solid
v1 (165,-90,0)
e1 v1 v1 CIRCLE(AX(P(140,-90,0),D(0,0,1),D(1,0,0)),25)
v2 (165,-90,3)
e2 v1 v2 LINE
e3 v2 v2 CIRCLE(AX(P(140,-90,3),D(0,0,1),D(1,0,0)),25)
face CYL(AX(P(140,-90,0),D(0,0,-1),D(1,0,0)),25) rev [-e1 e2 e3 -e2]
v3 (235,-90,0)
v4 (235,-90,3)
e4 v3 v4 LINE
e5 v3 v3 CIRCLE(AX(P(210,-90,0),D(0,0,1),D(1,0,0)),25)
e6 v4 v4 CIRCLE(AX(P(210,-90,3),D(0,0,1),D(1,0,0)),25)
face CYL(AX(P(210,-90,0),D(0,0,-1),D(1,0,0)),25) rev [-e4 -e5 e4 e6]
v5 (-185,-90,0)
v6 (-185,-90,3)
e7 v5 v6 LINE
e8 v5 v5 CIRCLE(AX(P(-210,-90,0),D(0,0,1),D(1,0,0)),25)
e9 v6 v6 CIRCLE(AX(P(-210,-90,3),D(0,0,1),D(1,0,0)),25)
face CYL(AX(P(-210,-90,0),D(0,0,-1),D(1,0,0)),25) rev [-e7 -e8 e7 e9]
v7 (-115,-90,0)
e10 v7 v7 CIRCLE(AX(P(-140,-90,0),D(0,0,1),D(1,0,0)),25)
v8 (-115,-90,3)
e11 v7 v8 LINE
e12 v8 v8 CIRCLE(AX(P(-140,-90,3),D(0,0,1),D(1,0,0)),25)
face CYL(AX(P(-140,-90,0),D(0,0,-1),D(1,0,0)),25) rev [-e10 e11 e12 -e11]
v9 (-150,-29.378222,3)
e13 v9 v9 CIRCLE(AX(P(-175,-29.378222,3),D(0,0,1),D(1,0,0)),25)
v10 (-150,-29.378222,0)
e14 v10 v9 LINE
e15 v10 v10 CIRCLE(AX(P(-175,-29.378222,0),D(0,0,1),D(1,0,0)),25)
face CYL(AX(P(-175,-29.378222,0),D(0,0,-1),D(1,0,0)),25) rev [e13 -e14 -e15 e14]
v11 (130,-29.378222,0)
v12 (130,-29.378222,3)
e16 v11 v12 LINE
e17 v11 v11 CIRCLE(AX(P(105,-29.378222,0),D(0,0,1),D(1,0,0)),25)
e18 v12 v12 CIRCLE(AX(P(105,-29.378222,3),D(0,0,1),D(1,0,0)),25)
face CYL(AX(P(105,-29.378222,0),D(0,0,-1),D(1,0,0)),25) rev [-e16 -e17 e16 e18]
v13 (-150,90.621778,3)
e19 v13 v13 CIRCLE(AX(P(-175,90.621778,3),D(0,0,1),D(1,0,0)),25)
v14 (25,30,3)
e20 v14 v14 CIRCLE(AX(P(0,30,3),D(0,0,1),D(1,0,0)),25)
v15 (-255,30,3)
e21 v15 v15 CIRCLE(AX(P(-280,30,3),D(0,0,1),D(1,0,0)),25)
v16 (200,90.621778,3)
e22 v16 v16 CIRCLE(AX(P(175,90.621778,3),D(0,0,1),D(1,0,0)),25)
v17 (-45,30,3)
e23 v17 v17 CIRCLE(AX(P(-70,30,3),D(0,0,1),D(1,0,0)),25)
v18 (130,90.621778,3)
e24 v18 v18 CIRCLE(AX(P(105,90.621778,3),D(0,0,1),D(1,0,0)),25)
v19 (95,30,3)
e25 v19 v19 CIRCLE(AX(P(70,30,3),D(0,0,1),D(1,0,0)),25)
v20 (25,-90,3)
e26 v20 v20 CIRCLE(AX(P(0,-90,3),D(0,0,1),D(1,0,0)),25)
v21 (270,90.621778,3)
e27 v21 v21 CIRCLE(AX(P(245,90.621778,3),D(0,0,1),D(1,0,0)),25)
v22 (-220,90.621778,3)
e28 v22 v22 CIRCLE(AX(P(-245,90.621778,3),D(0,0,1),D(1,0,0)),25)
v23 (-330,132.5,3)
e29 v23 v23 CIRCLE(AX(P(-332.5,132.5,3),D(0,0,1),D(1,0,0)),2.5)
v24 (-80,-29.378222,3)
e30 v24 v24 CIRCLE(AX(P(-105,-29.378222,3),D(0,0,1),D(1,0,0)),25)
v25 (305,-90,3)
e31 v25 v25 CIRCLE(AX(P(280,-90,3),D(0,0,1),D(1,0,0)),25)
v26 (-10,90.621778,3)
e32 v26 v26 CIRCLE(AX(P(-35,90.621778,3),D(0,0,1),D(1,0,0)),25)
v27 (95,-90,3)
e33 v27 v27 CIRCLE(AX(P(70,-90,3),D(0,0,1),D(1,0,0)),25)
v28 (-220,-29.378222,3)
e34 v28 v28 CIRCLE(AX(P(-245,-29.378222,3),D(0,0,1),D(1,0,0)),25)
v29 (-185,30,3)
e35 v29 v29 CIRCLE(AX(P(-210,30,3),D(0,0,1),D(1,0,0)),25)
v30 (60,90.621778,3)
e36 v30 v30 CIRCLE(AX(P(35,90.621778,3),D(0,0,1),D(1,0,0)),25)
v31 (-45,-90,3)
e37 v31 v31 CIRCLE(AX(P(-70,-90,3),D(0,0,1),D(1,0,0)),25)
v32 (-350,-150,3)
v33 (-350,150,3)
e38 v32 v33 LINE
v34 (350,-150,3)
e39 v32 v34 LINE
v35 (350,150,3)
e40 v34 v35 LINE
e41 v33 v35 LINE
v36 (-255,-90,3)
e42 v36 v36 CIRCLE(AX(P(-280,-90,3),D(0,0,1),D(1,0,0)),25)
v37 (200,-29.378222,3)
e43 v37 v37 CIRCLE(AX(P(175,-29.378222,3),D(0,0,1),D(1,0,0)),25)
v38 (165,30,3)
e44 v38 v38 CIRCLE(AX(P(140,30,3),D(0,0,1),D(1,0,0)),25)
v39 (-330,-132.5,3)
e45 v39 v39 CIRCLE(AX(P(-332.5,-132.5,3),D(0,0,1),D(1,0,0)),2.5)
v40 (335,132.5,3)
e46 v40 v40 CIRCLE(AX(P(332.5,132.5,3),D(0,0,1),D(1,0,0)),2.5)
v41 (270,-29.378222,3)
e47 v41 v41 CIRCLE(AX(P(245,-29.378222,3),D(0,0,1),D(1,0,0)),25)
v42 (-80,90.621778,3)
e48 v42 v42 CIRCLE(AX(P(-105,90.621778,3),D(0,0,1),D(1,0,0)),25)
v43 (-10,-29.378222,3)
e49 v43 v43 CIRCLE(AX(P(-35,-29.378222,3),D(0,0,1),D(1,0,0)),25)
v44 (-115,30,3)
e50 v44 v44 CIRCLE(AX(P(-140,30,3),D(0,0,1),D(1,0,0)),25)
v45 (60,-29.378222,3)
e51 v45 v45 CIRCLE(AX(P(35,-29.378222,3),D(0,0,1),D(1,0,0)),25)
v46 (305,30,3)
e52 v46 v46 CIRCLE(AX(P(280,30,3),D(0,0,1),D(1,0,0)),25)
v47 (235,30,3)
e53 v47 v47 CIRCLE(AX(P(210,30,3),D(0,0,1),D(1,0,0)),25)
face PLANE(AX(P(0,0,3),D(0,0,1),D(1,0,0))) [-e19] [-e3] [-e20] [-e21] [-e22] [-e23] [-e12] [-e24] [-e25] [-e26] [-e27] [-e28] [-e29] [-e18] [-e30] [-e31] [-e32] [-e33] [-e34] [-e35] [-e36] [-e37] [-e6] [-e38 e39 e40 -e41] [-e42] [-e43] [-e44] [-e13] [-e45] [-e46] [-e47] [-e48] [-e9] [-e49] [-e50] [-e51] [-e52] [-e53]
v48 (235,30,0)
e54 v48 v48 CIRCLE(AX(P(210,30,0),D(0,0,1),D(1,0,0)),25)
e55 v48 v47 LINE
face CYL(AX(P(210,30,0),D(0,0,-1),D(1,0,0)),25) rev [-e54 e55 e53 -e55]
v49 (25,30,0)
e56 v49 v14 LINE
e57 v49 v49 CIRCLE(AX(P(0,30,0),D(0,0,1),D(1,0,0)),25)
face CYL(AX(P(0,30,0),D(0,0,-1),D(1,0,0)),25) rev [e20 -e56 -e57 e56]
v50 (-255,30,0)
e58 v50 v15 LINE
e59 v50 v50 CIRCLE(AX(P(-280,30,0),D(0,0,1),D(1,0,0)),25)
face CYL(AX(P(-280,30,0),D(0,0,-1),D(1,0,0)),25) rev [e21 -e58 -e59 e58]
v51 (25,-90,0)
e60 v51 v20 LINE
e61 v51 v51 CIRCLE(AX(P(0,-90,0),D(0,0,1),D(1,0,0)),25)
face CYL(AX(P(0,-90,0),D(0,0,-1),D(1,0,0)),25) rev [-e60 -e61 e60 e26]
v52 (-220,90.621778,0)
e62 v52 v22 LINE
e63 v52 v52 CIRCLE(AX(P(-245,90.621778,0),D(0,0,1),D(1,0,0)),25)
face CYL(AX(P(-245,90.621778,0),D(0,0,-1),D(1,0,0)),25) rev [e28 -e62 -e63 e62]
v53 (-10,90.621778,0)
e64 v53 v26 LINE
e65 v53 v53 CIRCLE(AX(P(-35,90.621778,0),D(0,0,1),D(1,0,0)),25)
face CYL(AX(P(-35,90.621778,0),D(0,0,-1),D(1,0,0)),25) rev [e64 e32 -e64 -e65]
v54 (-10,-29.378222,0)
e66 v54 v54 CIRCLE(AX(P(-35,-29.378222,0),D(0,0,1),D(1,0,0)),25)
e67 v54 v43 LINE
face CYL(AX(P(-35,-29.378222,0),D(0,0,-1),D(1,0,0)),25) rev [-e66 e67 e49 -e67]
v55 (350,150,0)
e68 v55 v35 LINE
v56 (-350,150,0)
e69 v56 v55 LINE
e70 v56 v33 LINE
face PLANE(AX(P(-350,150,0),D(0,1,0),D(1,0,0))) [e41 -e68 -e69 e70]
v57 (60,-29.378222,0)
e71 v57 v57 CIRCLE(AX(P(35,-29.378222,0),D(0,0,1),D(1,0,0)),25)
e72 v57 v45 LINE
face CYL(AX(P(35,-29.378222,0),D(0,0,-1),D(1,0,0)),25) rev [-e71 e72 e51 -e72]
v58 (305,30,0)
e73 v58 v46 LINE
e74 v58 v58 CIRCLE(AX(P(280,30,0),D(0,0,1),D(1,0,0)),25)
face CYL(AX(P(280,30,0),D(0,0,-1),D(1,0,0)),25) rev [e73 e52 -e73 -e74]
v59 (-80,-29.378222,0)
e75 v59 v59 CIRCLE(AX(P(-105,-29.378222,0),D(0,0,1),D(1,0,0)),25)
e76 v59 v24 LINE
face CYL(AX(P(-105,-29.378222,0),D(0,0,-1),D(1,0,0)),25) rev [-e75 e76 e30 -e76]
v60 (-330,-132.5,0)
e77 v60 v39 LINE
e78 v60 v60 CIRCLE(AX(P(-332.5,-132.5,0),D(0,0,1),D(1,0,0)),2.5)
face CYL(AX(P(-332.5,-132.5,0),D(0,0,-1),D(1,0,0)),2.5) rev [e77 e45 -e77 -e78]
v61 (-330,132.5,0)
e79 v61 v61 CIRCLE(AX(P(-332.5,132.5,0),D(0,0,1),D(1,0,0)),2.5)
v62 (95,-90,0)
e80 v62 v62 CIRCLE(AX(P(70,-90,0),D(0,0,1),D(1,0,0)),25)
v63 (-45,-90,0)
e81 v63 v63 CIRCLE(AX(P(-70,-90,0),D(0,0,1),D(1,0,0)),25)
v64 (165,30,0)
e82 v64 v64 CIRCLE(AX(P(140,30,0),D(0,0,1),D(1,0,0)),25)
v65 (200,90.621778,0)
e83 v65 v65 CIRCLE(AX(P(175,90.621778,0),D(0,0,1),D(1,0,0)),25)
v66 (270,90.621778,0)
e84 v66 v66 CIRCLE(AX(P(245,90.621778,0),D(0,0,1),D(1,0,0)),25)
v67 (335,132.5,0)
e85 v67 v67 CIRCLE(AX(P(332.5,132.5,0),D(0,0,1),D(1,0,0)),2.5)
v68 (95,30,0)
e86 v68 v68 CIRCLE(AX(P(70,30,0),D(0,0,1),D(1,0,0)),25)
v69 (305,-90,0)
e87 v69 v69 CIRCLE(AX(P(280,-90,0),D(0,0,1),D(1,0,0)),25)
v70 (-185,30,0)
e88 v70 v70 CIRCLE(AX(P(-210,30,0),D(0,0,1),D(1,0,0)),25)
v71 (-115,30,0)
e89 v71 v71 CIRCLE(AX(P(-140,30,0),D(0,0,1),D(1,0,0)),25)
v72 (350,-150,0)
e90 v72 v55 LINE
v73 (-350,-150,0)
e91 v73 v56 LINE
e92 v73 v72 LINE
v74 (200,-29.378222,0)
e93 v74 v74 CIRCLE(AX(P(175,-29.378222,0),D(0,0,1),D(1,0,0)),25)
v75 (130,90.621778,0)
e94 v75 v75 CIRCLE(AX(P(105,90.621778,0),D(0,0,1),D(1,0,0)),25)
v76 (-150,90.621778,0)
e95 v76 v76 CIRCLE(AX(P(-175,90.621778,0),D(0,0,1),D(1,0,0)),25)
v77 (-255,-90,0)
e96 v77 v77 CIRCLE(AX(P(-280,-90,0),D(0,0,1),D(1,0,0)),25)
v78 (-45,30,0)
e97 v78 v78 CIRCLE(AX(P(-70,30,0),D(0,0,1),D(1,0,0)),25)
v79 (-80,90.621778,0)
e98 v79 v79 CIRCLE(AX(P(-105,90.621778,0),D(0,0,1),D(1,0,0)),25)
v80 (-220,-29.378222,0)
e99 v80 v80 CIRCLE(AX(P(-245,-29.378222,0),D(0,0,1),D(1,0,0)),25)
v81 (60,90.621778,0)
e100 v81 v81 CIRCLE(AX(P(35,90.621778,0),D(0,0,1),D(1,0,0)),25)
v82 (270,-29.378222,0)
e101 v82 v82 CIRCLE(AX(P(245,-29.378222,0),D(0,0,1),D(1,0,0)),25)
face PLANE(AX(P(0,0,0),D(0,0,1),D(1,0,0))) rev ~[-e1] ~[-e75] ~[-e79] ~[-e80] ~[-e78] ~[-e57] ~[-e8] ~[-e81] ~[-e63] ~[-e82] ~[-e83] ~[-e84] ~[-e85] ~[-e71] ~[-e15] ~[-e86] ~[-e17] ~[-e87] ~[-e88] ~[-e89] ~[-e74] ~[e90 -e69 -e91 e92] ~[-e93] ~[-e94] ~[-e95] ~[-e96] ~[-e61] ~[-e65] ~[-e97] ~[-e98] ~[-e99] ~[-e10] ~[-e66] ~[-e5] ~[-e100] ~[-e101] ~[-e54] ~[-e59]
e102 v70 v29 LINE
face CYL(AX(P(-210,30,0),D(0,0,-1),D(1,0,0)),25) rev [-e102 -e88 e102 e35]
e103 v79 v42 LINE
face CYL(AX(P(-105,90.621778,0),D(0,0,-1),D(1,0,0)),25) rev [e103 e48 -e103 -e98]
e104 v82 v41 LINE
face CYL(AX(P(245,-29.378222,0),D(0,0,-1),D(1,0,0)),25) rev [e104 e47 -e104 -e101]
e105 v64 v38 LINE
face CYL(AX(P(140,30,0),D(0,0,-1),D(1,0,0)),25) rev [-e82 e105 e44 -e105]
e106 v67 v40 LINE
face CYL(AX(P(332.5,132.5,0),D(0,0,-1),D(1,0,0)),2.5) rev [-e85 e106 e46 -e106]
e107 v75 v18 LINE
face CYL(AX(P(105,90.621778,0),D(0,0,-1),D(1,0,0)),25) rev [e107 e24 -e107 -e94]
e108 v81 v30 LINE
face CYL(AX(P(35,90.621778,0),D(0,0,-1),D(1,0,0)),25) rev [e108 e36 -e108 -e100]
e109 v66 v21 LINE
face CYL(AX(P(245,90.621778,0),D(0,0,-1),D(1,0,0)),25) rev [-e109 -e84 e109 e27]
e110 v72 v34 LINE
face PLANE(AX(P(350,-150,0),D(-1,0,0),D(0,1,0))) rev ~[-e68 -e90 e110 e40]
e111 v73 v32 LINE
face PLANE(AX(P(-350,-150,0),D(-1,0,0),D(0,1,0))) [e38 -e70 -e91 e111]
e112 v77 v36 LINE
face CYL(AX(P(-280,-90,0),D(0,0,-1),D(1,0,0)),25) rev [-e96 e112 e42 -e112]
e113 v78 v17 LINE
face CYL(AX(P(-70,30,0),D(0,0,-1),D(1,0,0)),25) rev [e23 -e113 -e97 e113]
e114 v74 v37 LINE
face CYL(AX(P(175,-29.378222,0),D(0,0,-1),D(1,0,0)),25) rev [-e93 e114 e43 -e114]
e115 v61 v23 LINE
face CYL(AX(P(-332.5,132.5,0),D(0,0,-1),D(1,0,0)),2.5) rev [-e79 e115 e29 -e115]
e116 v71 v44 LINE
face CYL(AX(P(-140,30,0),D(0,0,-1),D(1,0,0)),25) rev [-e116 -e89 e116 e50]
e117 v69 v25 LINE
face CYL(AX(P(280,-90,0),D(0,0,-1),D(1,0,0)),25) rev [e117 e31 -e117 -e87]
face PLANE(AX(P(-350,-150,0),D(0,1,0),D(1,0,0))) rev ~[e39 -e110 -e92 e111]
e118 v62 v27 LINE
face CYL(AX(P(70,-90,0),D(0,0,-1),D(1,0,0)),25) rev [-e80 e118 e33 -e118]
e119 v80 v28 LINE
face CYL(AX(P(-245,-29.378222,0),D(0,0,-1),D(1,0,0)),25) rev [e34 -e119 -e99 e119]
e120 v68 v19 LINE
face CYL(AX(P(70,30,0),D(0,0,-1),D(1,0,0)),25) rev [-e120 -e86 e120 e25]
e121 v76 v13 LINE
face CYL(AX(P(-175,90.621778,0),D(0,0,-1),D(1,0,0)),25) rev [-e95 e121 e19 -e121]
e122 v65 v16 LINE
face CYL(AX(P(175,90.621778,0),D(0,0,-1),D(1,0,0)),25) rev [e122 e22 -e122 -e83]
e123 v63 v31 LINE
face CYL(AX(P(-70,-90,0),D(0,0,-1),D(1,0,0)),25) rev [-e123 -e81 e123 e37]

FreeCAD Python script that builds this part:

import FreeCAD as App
import Part
import Sketcher
Q = App.Units.Quantity

doc = App.newDocument("Part")
body = doc.addObject("PartDesign::Body", "Body")

sketch1 = doc.addObject("Sketcher::SketchObject", "Sketch")
body.addObject(sketch1)
sketch1.AttachmentSupport = (doc.XY_Plane, [""])
sketch1.MapMode = "FlatFace"
sketch1.addGeometry(Part.LineSegment(App.Vector(-350, 150, 0), App.Vector(-350, -150, 0)), False)
sketch1.addGeometry(Part.LineSegment(App.Vector(-350, -150, 0), App.Vector(350, -150, 0)), False)
sketch1.addGeometry(Part.LineSegment(App.Vector(350, -150, 0), App.Vector(350, 150, 0)), False)
sketch1.addGeometry(Part.LineSegment(App.Vector(350, 150, 0), App.Vector(-350, 150, 0)), False)
sketch1.addGeometry(Part.Circle(App.Vector(-332.5, -132.5, 0), App.Vector(0, 0, 1), 2.5), False)
sketch1.addGeometry(Part.Circle(App.Vector(-280, -90, 0), App.Vector(0, 0, 1), 25), False)
sketch1.addGeometry(Part.Circle(App.Vector(-210, -90, 0), App.Vector(0, 0, 1), 25), False)
sketch1.addGeometry(Part.Circle(App.Vector(-140, -90, 0), App.Vector(0, 0, 1), 25), False)
sketch1.addGeometry(Part.Circle(App.Vector(-70, -90, 0), App.Vector(0, 0, 1), 25), False)
sketch1.addGeometry(Part.Circle(App.Vector(-245, -29.4, 0), App.Vector(0, 0, 1), 25), False)
sketch1.addGeometry(Part.Circle(App.Vector(-175, -29.4, 0), App.Vector(0, 0, 1), 25), False)
sketch1.addGeometry(Part.Circle(App.Vector(-105, -29.4, 0), App.Vector(0, 0, 1), 25), False)
sketch1.addGeometry(Part.Circle(App.Vector(-35, -29.4, 0), App.Vector(0, 0, 1), 25), False)
sketch1.addGeometry(Part.Circle(App.Vector(0, -90, 0), App.Vector(0, 0, 1), 25), False)
sketch1.addGeometry(Part.Circle(App.Vector(70, -90, 0), App.Vector(0, 0, 1), 25), False)
sketch1.addGeometry(Part.Circle(App.Vector(140, -90, 0), App.Vector(0, 0, 1), 25), False)
sketch1.addGeometry(Part.Circle(App.Vector(210, -90, 0), App.Vector(0, 0, 1), 25), False)
sketch1.addGeometry(Part.Circle(App.Vector(280, -90, 0), App.Vector(0, 0, 1), 25), False)
sketch1.addGeometry(Part.Circle(App.Vector(35, -29.4, 0), App.Vector(0, 0, 1), 25), False)
sketch1.addGeometry(Part.Circle(App.Vector(105, -29.4, 0), App.Vector(0, 0, 1), 25), False)
sketch1.addGeometry(Part.Circle(App.Vector(175, -29.4, 0), App.Vector(0, 0, 1), 25), False)
sketch1.addGeometry(Part.Circle(App.Vector(245, -29.4, 0), App.Vector(0, 0, 1), 25), False)
sketch1.addGeometry(Part.Circle(App.Vector(-280, 30, 0), App.Vector(0, 0, 1), 25), False)
sketch1.addGeometry(Part.Circle(App.Vector(-210, 30, 0), App.Vector(0, 0, 1), 25), False)
sketch1.addGeometry(Part.Circle(App.Vector(-140, 30, 0), App.Vector(0, 0, 1), 25), False)
sketch1.addGeometry(Part.Circle(App.Vector(-70, 30, 0), App.Vector(0, 0, 1), 25), False)
sketch1.addGeometry(Part.Circle(App.Vector(-245, 90.6, 0), App.Vector(0, 0, 1), 25), False)
sketch1.addGeometry(Part.Circle(App.Vector(-175, 90.6, 0), App.Vector(0, 0, 1), 25), False)
sketch1.addGeometry(Part.Circle(App.Vector(-332.5, 132.5, 0), App.Vector(0, 0, 1), 2.5), False)
sketch1.addGeometry(Part.Circle(App.Vector(-105, 90.6, 0), App.Vector(0, 0, 1), 25), False)
sketch1.addGeometry(Part.Circle(App.Vector(-35, 90.6, 0), App.Vector(0, 0, 1), 25), False)
sketch1.addGeometry(Part.Circle(App.Vector(0, 30, 0), App.Vector(0, 0, 1), 25), False)
sketch1.addGeometry(Part.Circle(App.Vector(70, 30, 0), App.Vector(0, 0, 1), 25), False)
sketch1.addGeometry(Part.Circle(App.Vector(140, 30, 0), App.Vector(0, 0, 1), 25), False)
sketch1.addGeometry(Part.Circle(App.Vector(210, 30, 0), App.Vector(0, 0, 1), 25), False)
sketch1.addGeometry(Part.Circle(App.Vector(280, 30, 0), App.Vector(0, 0, 1), 25), False)
sketch1.addGeometry(Part.Circle(App.Vector(35, 90.6, 0), App.Vector(0, 0, 1), 25), False)
sketch1.addGeometry(Part.Circle(App.Vector(105, 90.6, 0), App.Vector(0, 0, 1), 25), False)
sketch1.addGeometry(Part.Circle(App.Vector(175, 90.6, 0), App.Vector(0, 0, 1), 25), False)
sketch1.addGeometry(Part.Circle(App.Vector(245, 90.6, 0), App.Vector(0, 0, 1), 25), False)
sketch1.addGeometry(Part.Circle(App.Vector(332.5, 132.5, 0), App.Vector(0, 0, 1), 2.5), False)
sketch1.addConstraint(Sketcher.Constraint("Coincident", 0, 2, 1, 1))
sketch1.addConstraint(Sketcher.Constraint("Coincident", 1, 2, 2, 1))
sketch1.addConstraint(Sketcher.Constraint("Coincident", 2, 2, 3, 1))
sketch1.addConstraint(Sketcher.Constraint("Coincident", 3, 2, 0, 1))
sketch1.addConstraint(Sketcher.Constraint("Vertical", 0))
sketch1.addConstraint(Sketcher.Constraint("Horizontal", 1))
sketch1.addConstraint(Sketcher.Constraint("Vertical", 2))
sketch1.addConstraint(Sketcher.Constraint("Horizontal", 3))
sketch1.addConstraint(Sketcher.Constraint("Equal", 5, 6))
sketch1.addConstraint(Sketcher.Constraint("Equal", 6, 7))
sketch1.addConstraint(Sketcher.Constraint("Equal", 7, 8))
sketch1.addConstraint(Sketcher.Constraint("Equal", 8, 9))
sketch1.addConstraint(Sketcher.Constraint("Equal", 9, 10))
sketch1.addConstraint(Sketcher.Constraint("Equal", 10, 11))
sketch1.addConstraint(Sketcher.Constraint("Equal", 11, 12))
sketch1.addConstraint(Sketcher.Constraint("Equal", 12, 13))
sketch1.addConstraint(Sketcher.Constraint("Equal", 13, 14))
sketch1.addConstraint(Sketcher.Constraint("Equal", 14, 15))
sketch1.addConstraint(Sketcher.Constraint("Equal", 15, 16))
sketch1.addConstraint(Sketcher.Constraint("Equal", 16, 17))
sketch1.addConstraint(Sketcher.Constraint("Equal", 17, 18))
sketch1.addConstraint(Sketcher.Constraint("Equal", 18, 19))
sketch1.addConstraint(Sketcher.Constraint("Equal", 19, 20))
sketch1.addConstraint(Sketcher.Constraint("Equal", 20, 21))
sketch1.addConstraint(Sketcher.Constraint("Equal", 21, 22))
sketch1.addConstraint(Sketcher.Constraint("Equal", 22, 23))
sketch1.addConstraint(Sketcher.Constraint("Equal", 23, 24))
sketch1.addConstraint(Sketcher.Constraint("Equal", 24, 25))
sketch1.addConstraint(Sketcher.Constraint("Equal", 25, 26))
sketch1.addConstraint(Sketcher.Constraint("Equal", 26, 27))
sketch1.addConstraint(Sketcher.Constraint("Equal", 4, 28))
sketch1.addConstraint(Sketcher.Constraint("Equal", 27, 29))
sketch1.addConstraint(Sketcher.Constraint("Equal", 29, 30))
sketch1.addConstraint(Sketcher.Constraint("Equal", 30, 31))
sketch1.addConstraint(Sketcher.Constraint("Equal", 31, 32))
sketch1.addConstraint(Sketcher.Constraint("Equal", 32, 33))
sketch1.addConstraint(Sketcher.Constraint("Equal", 33, 34))
sketch1.addConstraint(Sketcher.Constraint("Equal", 34, 35))
sketch1.addConstraint(Sketcher.Constraint("Equal", 35, 36))
sketch1.addConstraint(Sketcher.Constraint("Equal", 36, 37))
sketch1.addConstraint(Sketcher.Constraint("Equal", 37, 38))
sketch1.addConstraint(Sketcher.Constraint("Equal", 38, 39))
sketch1.addConstraint(Sketcher.Constraint("Equal", 28, 40))
sketch1.addConstraint(Sketcher.Constraint("Symmetric", 4, 3, 40, 3, -1, 1))
sketch1.addConstraint(Sketcher.Constraint("Symmetric", 0, 2, 2, 2, -1, 1))
sketch1.addConstraint(Sketcher.Constraint("Symmetric", 8, 3, 14, 3, -2))
sketch1.addConstraint(Sketcher.Constraint("Symmetric", 7, 3, 15, 3, -2))
sketch1.addConstraint(Sketcher.Constraint("Symmetric", 6, 3, 16, 3, -2))
sketch1.addConstraint(Sketcher.Constraint("Symmetric", 5, 3, 17, 3, -2))
sketch1.addConstraint(Sketcher.Constraint("Symmetric", 12, 3, 18, 3, -2))
sketch1.addConstraint(Sketcher.Constraint("Symmetric", 11, 3, 19, 3, -2))
sketch1.addConstraint(Sketcher.Constraint("Symmetric", 10, 3, 20, 3, -2))
sketch1.addConstraint(Sketcher.Constraint("Symmetric", 9, 3, 21, 3, -2))
sketch1.addConstraint(Sketcher.Constraint("Symmetric", 25, 3, 32, 3, -2))
sketch1.addConstraint(Sketcher.Constraint("Symmetric", 24, 3, 33, 3, -2))
sketch1.addConstraint(Sketcher.Constraint("Symmetric", 23, 3, 34, 3, -2))
sketch1.addConstraint(Sketcher.Constraint("Symmetric", 22, 3, 35, 3, -2))
sketch1.addConstraint(Sketcher.Constraint("Symmetric", 30, 3, 36, 3, -2))
sketch1.addConstraint(Sketcher.Constraint("Symmetric", 29, 3, 37, 3, -2))
sketch1.addConstraint(Sketcher.Constraint("Symmetric", 27, 3, 38, 3, -2))
sketch1.addConstraint(Sketcher.Constraint("Symmetric", 26, 3, 39, 3, -2))
sketch1.addConstraint(Sketcher.Constraint("Symmetric", 28, 3, 40, 3, -2))
sketch1.addConstraint(Sketcher.Constraint("PointOnObject", 13, 3, -2))
sketch1.addConstraint(Sketcher.Constraint("PointOnObject", 31, 3, -2))
sketch1.addConstraint(Sketcher.Constraint("Horizontal", 5, 3, 6, 3))
sketch1.addConstraint(Sketcher.Constraint("Horizontal", 6, 3, 7, 3))
sketch1.addConstraint(Sketcher.Constraint("Horizontal", 7, 3, 8, 3))
sketch1.addConstraint(Sketcher.Constraint("Horizontal", 9, 3, 10, 3))
sketch1.addConstraint(Sketcher.Constraint("Horizontal", 10, 3, 11, 3))
sketch1.addConstraint(Sketcher.Constraint("Horizontal", 11, 3, 12, 3))
sketch1.addConstraint(Sketcher.Constraint("Horizontal", 8, 3, 13, 3))
sketch1.addConstraint(Sketcher.Constraint("Horizontal", 22, 3, 23, 3))
sketch1.addConstraint(Sketcher.Constraint("Horizontal", 23, 3, 24, 3))
sketch1.addConstraint(Sketcher.Constraint("Horizontal", 24, 3, 25, 3))
sketch1.addConstraint(Sketcher.Constraint("Horizontal", 26, 3, 27, 3))
sketch1.addConstraint(Sketcher.Constraint("Horizontal", 27, 3, 29, 3))
sketch1.addConstraint(Sketcher.Constraint("Horizontal", 29, 3, 30, 3))
sketch1.addConstraint(Sketcher.Constraint("Horizontal", 25, 3, 31, 3))
sketch1.addConstraint(Sketcher.Constraint("Vertical", 5, 3, 22, 3))
sketch1.addConstraint(Sketcher.Constraint("Vertical", 6, 3, 23, 3))
sketch1.addConstraint(Sketcher.Constraint("Vertical", 7, 3, 24, 3))
sketch1.addConstraint(Sketcher.Constraint("Vertical", 8, 3, 25, 3))
sketch1.addConstraint(Sketcher.Constraint("Vertical", 9, 3, 26, 3))
sketch1.addConstraint(Sketcher.Constraint("Vertical", 10, 3, 27, 3))
sketch1.addConstraint(Sketcher.Constraint("Vertical", 11, 3, 29, 3))
sketch1.addConstraint(Sketcher.Constraint("Vertical", 12, 3, 30, 3))
sketch1.addConstraint(Sketcher.Constraint("Diameter", 4, Q("5 mm")))
sketch1.addConstraint(Sketcher.Constraint("Diameter", 5, Q("50 mm")))
sketch1.addConstraint(Sketcher.Constraint("DistanceX", 1, 1, 1, 2, Q("700 mm")))
sketch1.addConstraint(Sketcher.Constraint("DistanceY", 0, 2, 0, 1, Q("300 mm")))
sketch1.addConstraint(Sketcher.Constraint("DistanceX", 5, 3, -1, 1, Q("280 mm")))
sketch1.addConstraint(Sketcher.Constraint("DistanceY", 5, 3, -1, 1, Q("90 mm")))
sketch1.addConstraint(Sketcher.Constraint("DistanceX", 6, 3, -1, 1, Q("210 mm")))
sketch1.addConstraint(Sketcher.Constraint("DistanceX", 7, 3, -1, 1, Q("140 mm")))
sketch1.addConstraint(Sketcher.Constraint("DistanceX", 8, 3, -1, 1, Q("70 mm")))
sketch1.addConstraint(Sketcher.Constraint("DistanceX", 9, 3, -1, 1, Q("245 mm")))
sketch1.addConstraint(Sketcher.Constraint("DistanceX", 10, 3, -1, 1, Q("175 mm")))
sketch1.addConstraint(Sketcher.Constraint("DistanceX", 11, 3, -1, 1, Q("105 mm")))
sketch1.addConstraint(Sketcher.Constraint("DistanceX", 12, 3, -1, 1, Q("35 mm")))
sketch1.addConstraint(Sketcher.Constraint("DistanceY", -1, 1, 22, 3, Q("30 mm")))
sketch1.addConstraint(Sketcher.Constraint("DistanceY", 9, 3, 26, 3, Q("120 mm")))
sketch1.addConstraint(Sketcher.Constraint("DistanceX", 4, 3, -1, 1, Q("332.5 mm")))
sketch1.addConstraint(Sketcher.Constraint("DistanceY", 4, 3, -1, 1, Q("132.5 mm")))
sketch1.addConstraint(Sketcher.Constraint("DistanceY", -1, 1, 26, 3, Q("90.621778 mm")))
pad1 = doc.addObject("PartDesign::Pad", "Pad")
body.addObject(pad1)
pad1.Profile = sketch1
pad1.Length = 3

doc.recompute()
